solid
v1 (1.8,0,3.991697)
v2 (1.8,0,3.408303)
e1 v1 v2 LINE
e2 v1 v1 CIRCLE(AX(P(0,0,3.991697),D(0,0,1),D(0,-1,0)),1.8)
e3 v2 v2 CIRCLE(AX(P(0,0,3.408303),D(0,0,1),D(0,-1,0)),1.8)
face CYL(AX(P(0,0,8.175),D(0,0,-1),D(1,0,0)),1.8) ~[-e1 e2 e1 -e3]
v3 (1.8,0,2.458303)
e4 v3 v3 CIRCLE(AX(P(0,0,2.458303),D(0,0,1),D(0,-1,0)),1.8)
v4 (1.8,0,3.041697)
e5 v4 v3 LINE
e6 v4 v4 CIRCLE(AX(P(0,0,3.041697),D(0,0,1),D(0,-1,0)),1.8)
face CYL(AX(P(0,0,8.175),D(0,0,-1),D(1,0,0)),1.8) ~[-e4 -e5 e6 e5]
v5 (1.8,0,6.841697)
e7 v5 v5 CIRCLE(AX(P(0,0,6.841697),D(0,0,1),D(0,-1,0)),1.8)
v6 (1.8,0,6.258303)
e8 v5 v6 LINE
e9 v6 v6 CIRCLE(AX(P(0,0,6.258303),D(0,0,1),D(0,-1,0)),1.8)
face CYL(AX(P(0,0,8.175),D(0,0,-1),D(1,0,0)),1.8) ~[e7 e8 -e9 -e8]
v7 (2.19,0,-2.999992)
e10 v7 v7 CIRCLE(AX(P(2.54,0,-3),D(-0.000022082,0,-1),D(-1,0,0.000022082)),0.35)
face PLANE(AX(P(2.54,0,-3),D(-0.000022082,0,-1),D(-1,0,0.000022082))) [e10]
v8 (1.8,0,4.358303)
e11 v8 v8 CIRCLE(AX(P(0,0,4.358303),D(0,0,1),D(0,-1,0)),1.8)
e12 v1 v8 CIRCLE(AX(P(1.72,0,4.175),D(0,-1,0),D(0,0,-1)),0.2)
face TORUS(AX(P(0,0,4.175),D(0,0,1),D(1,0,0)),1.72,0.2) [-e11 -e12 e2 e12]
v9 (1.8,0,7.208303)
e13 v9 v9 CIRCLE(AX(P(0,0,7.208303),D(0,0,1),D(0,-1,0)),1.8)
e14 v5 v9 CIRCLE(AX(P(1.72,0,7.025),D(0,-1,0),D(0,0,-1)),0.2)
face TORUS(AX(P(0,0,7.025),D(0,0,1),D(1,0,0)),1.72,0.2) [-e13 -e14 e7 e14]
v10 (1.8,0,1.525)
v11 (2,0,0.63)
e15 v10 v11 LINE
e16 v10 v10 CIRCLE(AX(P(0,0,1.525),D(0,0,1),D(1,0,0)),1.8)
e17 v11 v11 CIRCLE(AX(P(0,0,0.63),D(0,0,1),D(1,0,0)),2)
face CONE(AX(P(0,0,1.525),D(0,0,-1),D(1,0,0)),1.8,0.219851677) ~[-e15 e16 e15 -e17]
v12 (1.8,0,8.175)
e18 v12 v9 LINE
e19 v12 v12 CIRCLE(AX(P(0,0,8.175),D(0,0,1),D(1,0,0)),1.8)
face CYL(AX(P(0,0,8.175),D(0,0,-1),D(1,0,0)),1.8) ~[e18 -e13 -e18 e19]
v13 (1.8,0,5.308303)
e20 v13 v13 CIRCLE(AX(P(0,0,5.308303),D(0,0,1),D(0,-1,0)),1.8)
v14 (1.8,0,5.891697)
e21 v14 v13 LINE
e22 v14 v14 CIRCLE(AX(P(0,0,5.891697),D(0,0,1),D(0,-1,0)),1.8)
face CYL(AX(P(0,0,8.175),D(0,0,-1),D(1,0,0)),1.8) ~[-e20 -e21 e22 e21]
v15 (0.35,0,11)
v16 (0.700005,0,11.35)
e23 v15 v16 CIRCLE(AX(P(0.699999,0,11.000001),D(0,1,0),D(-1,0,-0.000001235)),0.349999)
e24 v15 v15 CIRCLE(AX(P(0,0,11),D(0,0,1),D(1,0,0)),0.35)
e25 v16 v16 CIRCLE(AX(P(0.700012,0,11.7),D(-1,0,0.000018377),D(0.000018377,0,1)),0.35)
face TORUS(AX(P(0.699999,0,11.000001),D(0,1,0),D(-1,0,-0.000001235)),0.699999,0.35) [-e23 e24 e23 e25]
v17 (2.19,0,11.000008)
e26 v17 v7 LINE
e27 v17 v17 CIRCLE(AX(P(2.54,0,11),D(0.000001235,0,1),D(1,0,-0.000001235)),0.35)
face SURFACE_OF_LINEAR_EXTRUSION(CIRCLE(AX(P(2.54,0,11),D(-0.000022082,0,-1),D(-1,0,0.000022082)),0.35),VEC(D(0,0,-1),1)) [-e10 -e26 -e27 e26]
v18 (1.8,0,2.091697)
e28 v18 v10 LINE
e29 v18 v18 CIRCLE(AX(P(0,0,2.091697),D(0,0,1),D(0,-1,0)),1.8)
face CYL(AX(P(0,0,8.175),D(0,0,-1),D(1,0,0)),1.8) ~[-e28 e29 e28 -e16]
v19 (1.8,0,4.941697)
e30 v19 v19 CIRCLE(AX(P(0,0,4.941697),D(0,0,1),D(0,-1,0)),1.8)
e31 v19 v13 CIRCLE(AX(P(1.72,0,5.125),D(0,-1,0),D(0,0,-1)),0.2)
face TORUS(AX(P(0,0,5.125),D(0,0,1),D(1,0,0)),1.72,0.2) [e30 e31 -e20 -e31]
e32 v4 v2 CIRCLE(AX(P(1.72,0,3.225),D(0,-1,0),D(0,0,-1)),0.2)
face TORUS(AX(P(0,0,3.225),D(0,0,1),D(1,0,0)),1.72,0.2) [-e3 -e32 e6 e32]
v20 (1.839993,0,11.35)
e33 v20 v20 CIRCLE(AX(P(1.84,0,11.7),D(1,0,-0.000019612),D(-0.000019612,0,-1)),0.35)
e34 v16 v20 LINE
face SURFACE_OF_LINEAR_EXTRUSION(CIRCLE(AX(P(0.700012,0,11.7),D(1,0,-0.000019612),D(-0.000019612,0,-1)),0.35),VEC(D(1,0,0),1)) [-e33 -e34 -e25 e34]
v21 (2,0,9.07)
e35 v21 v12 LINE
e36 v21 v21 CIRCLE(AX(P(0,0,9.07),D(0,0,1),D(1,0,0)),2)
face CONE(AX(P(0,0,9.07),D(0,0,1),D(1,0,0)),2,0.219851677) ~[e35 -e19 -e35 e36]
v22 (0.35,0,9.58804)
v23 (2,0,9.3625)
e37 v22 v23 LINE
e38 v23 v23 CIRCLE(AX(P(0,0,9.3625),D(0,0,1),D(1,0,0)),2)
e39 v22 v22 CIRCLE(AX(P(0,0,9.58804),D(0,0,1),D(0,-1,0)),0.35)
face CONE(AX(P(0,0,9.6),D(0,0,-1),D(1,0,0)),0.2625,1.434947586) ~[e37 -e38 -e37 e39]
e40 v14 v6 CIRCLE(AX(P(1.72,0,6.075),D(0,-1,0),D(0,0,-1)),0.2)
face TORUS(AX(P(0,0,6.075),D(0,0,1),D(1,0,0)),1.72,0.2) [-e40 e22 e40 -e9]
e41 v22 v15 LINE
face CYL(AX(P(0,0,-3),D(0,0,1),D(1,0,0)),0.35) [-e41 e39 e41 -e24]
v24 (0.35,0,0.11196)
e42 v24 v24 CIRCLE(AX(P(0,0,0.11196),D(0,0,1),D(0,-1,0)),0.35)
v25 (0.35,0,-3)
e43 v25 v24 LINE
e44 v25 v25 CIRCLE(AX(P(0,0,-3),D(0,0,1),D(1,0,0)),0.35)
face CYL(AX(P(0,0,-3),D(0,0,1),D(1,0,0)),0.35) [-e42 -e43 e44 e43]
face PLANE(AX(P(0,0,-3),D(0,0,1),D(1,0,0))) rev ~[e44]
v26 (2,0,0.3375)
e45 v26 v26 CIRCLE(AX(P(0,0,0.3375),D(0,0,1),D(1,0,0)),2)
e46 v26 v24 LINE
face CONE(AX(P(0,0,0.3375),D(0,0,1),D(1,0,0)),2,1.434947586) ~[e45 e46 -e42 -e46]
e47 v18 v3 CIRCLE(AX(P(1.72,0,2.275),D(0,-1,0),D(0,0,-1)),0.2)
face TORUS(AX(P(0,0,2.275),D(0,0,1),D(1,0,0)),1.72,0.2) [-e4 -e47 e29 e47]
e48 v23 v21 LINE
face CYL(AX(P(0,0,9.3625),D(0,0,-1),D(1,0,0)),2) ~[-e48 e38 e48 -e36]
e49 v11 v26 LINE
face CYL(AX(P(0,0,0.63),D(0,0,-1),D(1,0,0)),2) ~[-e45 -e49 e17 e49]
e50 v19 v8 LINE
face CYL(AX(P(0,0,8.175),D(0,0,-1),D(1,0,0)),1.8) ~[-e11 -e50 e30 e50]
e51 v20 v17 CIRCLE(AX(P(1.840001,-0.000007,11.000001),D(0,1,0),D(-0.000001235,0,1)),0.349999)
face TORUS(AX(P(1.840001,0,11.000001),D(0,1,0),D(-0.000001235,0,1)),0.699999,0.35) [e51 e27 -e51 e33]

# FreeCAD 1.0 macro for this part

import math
import FreeCAD as App
import Part
import Sketcher
Q = App.Units.Quantity


def add_polygon(sketch, points):
    """Adds a closed chain of lines whose ends are joined by coincident constraints."""
    first, n = sketch.GeometryCount, len(points)
    for a, b in zip(points, points[1:] + points[:1]):
        sketch.addGeometry(Part.LineSegment(App.Vector(*a, 0), App.Vector(*b, 0)), False)
    for i in range(n):
        sketch.addConstraint(Sketcher.Constraint("Coincident", first + i, 2, first + (i + 1) % n, 1))

doc = App.newDocument("Part")
body = doc.addObject("PartDesign::Body", "Body")

# Sketch on XZ plane
sketch1 = doc.addObject("Sketcher::SketchObject", "Sketch")
body.addObject(sketch1)
sketch1.AttachmentSupport = (doc.XZ_Plane, [""])
sketch1.MapMode = "FlatFace"
add_polygon(sketch1, [(0, 9.6), (0, 0.1), (0.26, 0.1), (2, 0.34), (2, 0.63), (1.8, 1.52), (1.8, 8.18), (2, 9.07), (2, 9.36), (0.26, 9.6)])  # lines 0-9
sketch1.addConstraint([
    Sketcher.Constraint("Vertical", 0),
    Sketcher.Constraint("Horizontal", 1),
    Sketcher.Constraint("Vertical", 3),
    Sketcher.Constraint("Vertical", 5),
    Sketcher.Constraint("Vertical", 7),
    Sketcher.Constraint("Horizontal", 9),
    Sketcher.Constraint("PointOnObject", 0, 2, -2),
    Sketcher.Constraint("Vertical", 3, 2, 6, 2),
    Sketcher.Constraint("Vertical", 1, 2, 8, 2),
    Sketcher.Constraint("Equal", 3, 7),
    Sketcher.Constraint("Equal", 4, 6),
    Sketcher.Constraint("Equal", 2, 8),
    Sketcher.Constraint("DistanceY", 0, 2, 0, 1, Q("9.5 mm")),
    Sketcher.Constraint("DistanceX", -1, 1, 2, 2, Q("2 mm")),
    Sketcher.Constraint("DistanceY", 5, 1, 5, 2, Q("6.65 mm")),
    Sketcher.Constraint("DistanceY", -1, 1, 0, 2, Q("0.1 mm")),
    Sketcher.Constraint("DistanceX", -1, 1, 4, 2, Q("1.8 mm")),
    Sketcher.Constraint("DistanceY", -1, 1, 3, 2, Q("0.63 mm")),
    Sketcher.Constraint("DistanceX", 1, 1, 1, 2, Q("0.2625 mm")),
    Sketcher.Constraint("DistanceY", 3, 1, 3, 2, Q("0.2925 mm")),
])
revolution = doc.addObject("PartDesign::Revolution", "Revolution")
body.addObject(revolution)
revolution.Profile = sketch1
revolution.ReferenceAxis = (sketch1, ["V_Axis"])
revolution.Angle = 360
body2 = doc.addObject("PartDesign::Body", "Body001")

# Sketch on XZ plane
sketch2 = doc.addObject("Sketcher::SketchObject", "Sketch001")
body2.addObject(sketch2)
sketch2.AttachmentSupport = (doc.getObject("XZ_Plane001"), [""])
sketch2.MapMode = "FlatFace"
sketch2.addGeometry([
    Part.LineSegment(App.Vector(1.6, 7.78, 0), App.Vector(1.6, 1.52, 0)),  # 0
    Part.LineSegment(App.Vector(1.6, 1.52, 0), App.Vector(1.72, 1.52, 0)),  # 1
    Part.LineSegment(App.Vector(1.72, 1.52, 0), App.Vector(1.72, 2.08, 0)),  # 2
    Part.ArcOfCircle(Part.Circle(App.Vector(1.72, 2.27, 0), App.Vector(0, 0, 1), 0.2), math.radians(-90), math.radians(90)),  # 3
    Part.LineSegment(App.Vector(1.72, 2.48, 0), App.Vector(1.72, 3.02, 0)),  # 4
    Part.ArcOfCircle(Part.Circle(App.Vector(1.72, 3.23, 0), App.Vector(0, 0, 1), 0.2), math.radians(-90), math.radians(90)),  # 5
    Part.LineSegment(App.Vector(1.72, 3.42, 0), App.Vector(1.72, 3.98, 0)),  # 6
    Part.ArcOfCircle(Part.Circle(App.Vector(1.72, 4.17, 0), App.Vector(0, 0, 1), 0.2), math.radians(-90), math.radians(90)),  # 7
    Part.LineSegment(App.Vector(1.72, 4.38, 0), App.Vector(1.72, 4.92, 0)),  # 8
    Part.ArcOfCircle(Part.Circle(App.Vector(1.72, 5.12, 0), App.Vector(0, 0, 1), 0.2), math.radians(-90), math.radians(90)),  # 9
    Part.LineSegment(App.Vector(1.72, 5.33, 0), App.Vector(1.72, 5.88, 0)),  # 10
    Part.ArcOfCircle(Part.Circle(App.Vector(1.72, 6.08, 0), App.Vector(0, 0, 1), 0.2), math.radians(-90), math.radians(90)),  # 11
    Part.LineSegment(App.Vector(1.72, 6.28, 0), App.Vector(1.72, 6.83, 0)),  # 12
    Part.ArcOfCircle(Part.Circle(App.Vector(1.72, 7.03, 0), App.Vector(0, 0, 1), 0.2), math.radians(-90), math.radians(90)),  # 13
    Part.LineSegment(App.Vector(1.72, 7.22, 0), App.Vector(1.72, 7.78, 0)),  # 14
    Part.LineSegment(App.Vector(1.72, 7.78, 0), App.Vector(1.6, 7.78, 0)),  # 15
], False)
sketch2.addConstraint([
    Sketcher.Constraint("Coincident", 0, 2, 1, 1),
    Sketcher.Constraint("Coincident", 1, 2, 2, 1),
    Sketcher.Constraint("Coincident", 2, 2, 3, 1),
    Sketcher.Constraint("Coincident", 3, 2, 4, 1),
    Sketcher.Constraint("Coincident", 4, 2, 5, 1),
    Sketcher.Constraint("Coincident", 5, 2, 6, 1),
    Sketcher.Constraint("Coincident", 6, 2, 7, 1),
    Sketcher.Constraint("Coincident", 7, 2, 8, 1),
    Sketcher.Constraint("Coincident", 8, 2, 9, 1),
    Sketcher.Constraint("Coincident", 9, 2, 10, 1),
    Sketcher.Constraint("Coincident", 10, 2, 11, 1),
    Sketcher.Constraint("Coincident", 11, 2, 12, 1),
    Sketcher.Constraint("Coincident", 12, 2, 13, 1),
    Sketcher.Constraint("Coincident", 13, 2, 14, 1),
    Sketcher.Constraint("Coincident", 14, 2, 15, 1),
    Sketcher.Constraint("Coincident", 15, 2, 0, 1),
    Sketcher.Constraint("Vertical", 0),
    Sketcher.Constraint("Horizontal", 1),
    Sketcher.Constraint("Vertical", 2),
    Sketcher.Constraint("Vertical", 4),
    Sketcher.Constraint("Vertical", 6),
    Sketcher.Constraint("Vertical", 8),
    Sketcher.Constraint("Vertical", 10),
    Sketcher.Constraint("Vertical", 12),
    Sketcher.Constraint("Vertical", 14),
    Sketcher.Constraint("Horizontal", 15),
    Sketcher.Constraint("Equal", 3, 5),
    Sketcher.Constraint("Equal", 5, 7),
    Sketcher.Constraint("Equal", 7, 9),
    Sketcher.Constraint("Equal", 9, 11),
    Sketcher.Constraint("Equal", 11, 13),
    Sketcher.Constraint("Vertical", 3, 3, 5, 3),
    Sketcher.Constraint("Vertical", 5, 3, 7, 3),
    Sketcher.Constraint("Vertical", 7, 3, 9, 3),
    Sketcher.Constraint("Vertical", 9, 3, 11, 3),
    Sketcher.Constraint("Vertical", 11, 3, 13, 3),
    Sketcher.Constraint("Vertical", 13, 3, 1, 2),
    Sketcher.Constraint("Vertical", 2, 2, 3, 2),
    Sketcher.Constraint("Vertical", 4, 2, 5, 2),
    Sketcher.Constraint("Vertical", 6, 2, 7, 2),
    Sketcher.Constraint("Vertical", 8, 2, 9, 2),
    Sketcher.Constraint("Vertical", 10, 2, 11, 2),
    Sketcher.Constraint("Vertical", 12, 2, 13, 2),
    Sketcher.Constraint("Equal", 2, 4),
    Sketcher.Constraint("Equal", 4, 6),
    Sketcher.Constraint("Equal", 6, 8),
    Sketcher.Constraint("Equal", 8, 10),
    Sketcher.Constraint("Equal", 10, 12),
    Sketcher.Constraint("Equal", 12, 14),
    Sketcher.Constraint("Radius", 3, Q("0.2 mm")),
    Sketcher.Constraint("DistanceX", 1, 1, 1, 2, Q("0.12 mm")),
    Sketcher.Constraint("DistanceY", 0, 2, 0, 1, Q("6.25 mm")),
    Sketcher.Constraint("DistanceX", -1, 1, 0, 2, Q("1.6 mm")),
    Sketcher.Constraint("DistanceY", -1, 1, 3, 3, Q("2.275 mm")),
])
revolution2 = doc.addObject("PartDesign::Revolution", "Revolution001")
body2.addObject(revolution2)
revolution2.Profile = sketch2
revolution2.ReferenceAxis = (sketch2, ["V_Axis"])
revolution2.Angle = 360
body3 = doc.addObject("PartDesign::Body", "Body002")

# Sketch on XY plane
sketch3 = doc.addObject("Sketcher::SketchObject", "Sketch002")
body3.addObject(sketch3)
sketch3.AttachmentSupport = (doc.getObject("XY_Plane002"), [""])
sketch3.MapMode = "FlatFace"
sketch3.AttachmentOffset = App.Placement(App.Vector(0, 0, -2), App.Rotation())
sketch3.addGeometry(Part.Circle(App.Vector(0, 0, 0), App.Vector(0, 0, 1), 0.35), False)
sketch3.addConstraint([
    Sketcher.Constraint("Coincident", 0, 3, -1, 1),
    Sketcher.Constraint("Diameter", 0, Q("0.7 mm")),
])

# Sketch on XZ plane
sketch4 = doc.addObject("Sketcher::SketchObject", "Sketch003")
body3.addObject(sketch4)
sketch4.AttachmentSupport = (doc.getObject("XZ_Plane002"), [""])
sketch4.MapMode = "FlatFace"
sketch4.addGeometry([
    Part.LineSegment(App.Vector(0, -3, 0), App.Vector(0, 11, 0)),  # 0
    Part.ArcOfCircle(Part.Circle(App.Vector(0.7, 11, 0), App.Vector(0, 0, 1), 0.7), math.radians(90), math.radians(180)),  # 1
    Part.LineSegment(App.Vector(0.7, 11.7, 0), App.Vector(1.8, 11.7, 0)),  # 2
    Part.ArcOfCircle(Part.Circle(App.Vector(1.8, 11, 0), App.Vector(0, 0, 1), 0.7), math.radians(0), math.radians(90)),  # 3
    Part.LineSegment(App.Vector(2.5, 11, 0), App.Vector(2.5, -3, 0)),  # 4
], False)
sketch4.addConstraint([
    Sketcher.Constraint("Tangent", 0, 2, 1, 2),
    Sketcher.Constraint("Coincident", 1, 1, 2, 1),
    Sketcher.Constraint("Tangent", 2, 2, 3, 2),
    Sketcher.Constraint("Tangent", 3, 1, 4, 1),
    Sketcher.Constraint("Vertical", 0),
    Sketcher.Constraint("Horizontal", 2),
    Sketcher.Constraint("Vertical", 4),
    Sketcher.Constraint("Equal", 1, 3),
    Sketcher.Constraint("PointOnObject", 0, 1, -2),
    Sketcher.Constraint("Horizontal", 0, 1, 4, 2),
    Sketcher.Constraint("Radius", 1, Q("0.699999 mm")),
    Sketcher.Constraint("DistanceY", 0, 1, 0, 2, Q("14 mm")),
    Sketcher.Constraint("DistanceY", -1, 1, 1, 3, Q("11.000001 mm")),
    Sketcher.Constraint("DistanceX", -1, 1, 3, 3, Q("1.840001 mm")),
    Sketcher.Constraint("DistanceX", 2, 1, 2, 2, Q("1.139988 mm")),
])
doc.recompute()

additivepipe = doc.addObject("PartDesign::AdditivePipe", "AdditivePipe")
body3.addObject(additivepipe)
additivepipe.Profile = sketch3
additivepipe.Spine = (sketch4, ["Edge1", "Edge2", "Edge3", "Edge4", "Edge5"])
doc.recompute()

boolean = doc.addObject("PartDesign::Boolean", "Boolean")
body3.addObject(boolean)
boolean.Type = "Fuse"
boolean.addObjects([body])
doc.recompute()

boolean2 = doc.addObject("PartDesign::Boolean", "Boolean001")
body3.addObject(boolean2)
boolean2.Type = "Fuse"
boolean2.addObjects([body2])

doc.recompute()
